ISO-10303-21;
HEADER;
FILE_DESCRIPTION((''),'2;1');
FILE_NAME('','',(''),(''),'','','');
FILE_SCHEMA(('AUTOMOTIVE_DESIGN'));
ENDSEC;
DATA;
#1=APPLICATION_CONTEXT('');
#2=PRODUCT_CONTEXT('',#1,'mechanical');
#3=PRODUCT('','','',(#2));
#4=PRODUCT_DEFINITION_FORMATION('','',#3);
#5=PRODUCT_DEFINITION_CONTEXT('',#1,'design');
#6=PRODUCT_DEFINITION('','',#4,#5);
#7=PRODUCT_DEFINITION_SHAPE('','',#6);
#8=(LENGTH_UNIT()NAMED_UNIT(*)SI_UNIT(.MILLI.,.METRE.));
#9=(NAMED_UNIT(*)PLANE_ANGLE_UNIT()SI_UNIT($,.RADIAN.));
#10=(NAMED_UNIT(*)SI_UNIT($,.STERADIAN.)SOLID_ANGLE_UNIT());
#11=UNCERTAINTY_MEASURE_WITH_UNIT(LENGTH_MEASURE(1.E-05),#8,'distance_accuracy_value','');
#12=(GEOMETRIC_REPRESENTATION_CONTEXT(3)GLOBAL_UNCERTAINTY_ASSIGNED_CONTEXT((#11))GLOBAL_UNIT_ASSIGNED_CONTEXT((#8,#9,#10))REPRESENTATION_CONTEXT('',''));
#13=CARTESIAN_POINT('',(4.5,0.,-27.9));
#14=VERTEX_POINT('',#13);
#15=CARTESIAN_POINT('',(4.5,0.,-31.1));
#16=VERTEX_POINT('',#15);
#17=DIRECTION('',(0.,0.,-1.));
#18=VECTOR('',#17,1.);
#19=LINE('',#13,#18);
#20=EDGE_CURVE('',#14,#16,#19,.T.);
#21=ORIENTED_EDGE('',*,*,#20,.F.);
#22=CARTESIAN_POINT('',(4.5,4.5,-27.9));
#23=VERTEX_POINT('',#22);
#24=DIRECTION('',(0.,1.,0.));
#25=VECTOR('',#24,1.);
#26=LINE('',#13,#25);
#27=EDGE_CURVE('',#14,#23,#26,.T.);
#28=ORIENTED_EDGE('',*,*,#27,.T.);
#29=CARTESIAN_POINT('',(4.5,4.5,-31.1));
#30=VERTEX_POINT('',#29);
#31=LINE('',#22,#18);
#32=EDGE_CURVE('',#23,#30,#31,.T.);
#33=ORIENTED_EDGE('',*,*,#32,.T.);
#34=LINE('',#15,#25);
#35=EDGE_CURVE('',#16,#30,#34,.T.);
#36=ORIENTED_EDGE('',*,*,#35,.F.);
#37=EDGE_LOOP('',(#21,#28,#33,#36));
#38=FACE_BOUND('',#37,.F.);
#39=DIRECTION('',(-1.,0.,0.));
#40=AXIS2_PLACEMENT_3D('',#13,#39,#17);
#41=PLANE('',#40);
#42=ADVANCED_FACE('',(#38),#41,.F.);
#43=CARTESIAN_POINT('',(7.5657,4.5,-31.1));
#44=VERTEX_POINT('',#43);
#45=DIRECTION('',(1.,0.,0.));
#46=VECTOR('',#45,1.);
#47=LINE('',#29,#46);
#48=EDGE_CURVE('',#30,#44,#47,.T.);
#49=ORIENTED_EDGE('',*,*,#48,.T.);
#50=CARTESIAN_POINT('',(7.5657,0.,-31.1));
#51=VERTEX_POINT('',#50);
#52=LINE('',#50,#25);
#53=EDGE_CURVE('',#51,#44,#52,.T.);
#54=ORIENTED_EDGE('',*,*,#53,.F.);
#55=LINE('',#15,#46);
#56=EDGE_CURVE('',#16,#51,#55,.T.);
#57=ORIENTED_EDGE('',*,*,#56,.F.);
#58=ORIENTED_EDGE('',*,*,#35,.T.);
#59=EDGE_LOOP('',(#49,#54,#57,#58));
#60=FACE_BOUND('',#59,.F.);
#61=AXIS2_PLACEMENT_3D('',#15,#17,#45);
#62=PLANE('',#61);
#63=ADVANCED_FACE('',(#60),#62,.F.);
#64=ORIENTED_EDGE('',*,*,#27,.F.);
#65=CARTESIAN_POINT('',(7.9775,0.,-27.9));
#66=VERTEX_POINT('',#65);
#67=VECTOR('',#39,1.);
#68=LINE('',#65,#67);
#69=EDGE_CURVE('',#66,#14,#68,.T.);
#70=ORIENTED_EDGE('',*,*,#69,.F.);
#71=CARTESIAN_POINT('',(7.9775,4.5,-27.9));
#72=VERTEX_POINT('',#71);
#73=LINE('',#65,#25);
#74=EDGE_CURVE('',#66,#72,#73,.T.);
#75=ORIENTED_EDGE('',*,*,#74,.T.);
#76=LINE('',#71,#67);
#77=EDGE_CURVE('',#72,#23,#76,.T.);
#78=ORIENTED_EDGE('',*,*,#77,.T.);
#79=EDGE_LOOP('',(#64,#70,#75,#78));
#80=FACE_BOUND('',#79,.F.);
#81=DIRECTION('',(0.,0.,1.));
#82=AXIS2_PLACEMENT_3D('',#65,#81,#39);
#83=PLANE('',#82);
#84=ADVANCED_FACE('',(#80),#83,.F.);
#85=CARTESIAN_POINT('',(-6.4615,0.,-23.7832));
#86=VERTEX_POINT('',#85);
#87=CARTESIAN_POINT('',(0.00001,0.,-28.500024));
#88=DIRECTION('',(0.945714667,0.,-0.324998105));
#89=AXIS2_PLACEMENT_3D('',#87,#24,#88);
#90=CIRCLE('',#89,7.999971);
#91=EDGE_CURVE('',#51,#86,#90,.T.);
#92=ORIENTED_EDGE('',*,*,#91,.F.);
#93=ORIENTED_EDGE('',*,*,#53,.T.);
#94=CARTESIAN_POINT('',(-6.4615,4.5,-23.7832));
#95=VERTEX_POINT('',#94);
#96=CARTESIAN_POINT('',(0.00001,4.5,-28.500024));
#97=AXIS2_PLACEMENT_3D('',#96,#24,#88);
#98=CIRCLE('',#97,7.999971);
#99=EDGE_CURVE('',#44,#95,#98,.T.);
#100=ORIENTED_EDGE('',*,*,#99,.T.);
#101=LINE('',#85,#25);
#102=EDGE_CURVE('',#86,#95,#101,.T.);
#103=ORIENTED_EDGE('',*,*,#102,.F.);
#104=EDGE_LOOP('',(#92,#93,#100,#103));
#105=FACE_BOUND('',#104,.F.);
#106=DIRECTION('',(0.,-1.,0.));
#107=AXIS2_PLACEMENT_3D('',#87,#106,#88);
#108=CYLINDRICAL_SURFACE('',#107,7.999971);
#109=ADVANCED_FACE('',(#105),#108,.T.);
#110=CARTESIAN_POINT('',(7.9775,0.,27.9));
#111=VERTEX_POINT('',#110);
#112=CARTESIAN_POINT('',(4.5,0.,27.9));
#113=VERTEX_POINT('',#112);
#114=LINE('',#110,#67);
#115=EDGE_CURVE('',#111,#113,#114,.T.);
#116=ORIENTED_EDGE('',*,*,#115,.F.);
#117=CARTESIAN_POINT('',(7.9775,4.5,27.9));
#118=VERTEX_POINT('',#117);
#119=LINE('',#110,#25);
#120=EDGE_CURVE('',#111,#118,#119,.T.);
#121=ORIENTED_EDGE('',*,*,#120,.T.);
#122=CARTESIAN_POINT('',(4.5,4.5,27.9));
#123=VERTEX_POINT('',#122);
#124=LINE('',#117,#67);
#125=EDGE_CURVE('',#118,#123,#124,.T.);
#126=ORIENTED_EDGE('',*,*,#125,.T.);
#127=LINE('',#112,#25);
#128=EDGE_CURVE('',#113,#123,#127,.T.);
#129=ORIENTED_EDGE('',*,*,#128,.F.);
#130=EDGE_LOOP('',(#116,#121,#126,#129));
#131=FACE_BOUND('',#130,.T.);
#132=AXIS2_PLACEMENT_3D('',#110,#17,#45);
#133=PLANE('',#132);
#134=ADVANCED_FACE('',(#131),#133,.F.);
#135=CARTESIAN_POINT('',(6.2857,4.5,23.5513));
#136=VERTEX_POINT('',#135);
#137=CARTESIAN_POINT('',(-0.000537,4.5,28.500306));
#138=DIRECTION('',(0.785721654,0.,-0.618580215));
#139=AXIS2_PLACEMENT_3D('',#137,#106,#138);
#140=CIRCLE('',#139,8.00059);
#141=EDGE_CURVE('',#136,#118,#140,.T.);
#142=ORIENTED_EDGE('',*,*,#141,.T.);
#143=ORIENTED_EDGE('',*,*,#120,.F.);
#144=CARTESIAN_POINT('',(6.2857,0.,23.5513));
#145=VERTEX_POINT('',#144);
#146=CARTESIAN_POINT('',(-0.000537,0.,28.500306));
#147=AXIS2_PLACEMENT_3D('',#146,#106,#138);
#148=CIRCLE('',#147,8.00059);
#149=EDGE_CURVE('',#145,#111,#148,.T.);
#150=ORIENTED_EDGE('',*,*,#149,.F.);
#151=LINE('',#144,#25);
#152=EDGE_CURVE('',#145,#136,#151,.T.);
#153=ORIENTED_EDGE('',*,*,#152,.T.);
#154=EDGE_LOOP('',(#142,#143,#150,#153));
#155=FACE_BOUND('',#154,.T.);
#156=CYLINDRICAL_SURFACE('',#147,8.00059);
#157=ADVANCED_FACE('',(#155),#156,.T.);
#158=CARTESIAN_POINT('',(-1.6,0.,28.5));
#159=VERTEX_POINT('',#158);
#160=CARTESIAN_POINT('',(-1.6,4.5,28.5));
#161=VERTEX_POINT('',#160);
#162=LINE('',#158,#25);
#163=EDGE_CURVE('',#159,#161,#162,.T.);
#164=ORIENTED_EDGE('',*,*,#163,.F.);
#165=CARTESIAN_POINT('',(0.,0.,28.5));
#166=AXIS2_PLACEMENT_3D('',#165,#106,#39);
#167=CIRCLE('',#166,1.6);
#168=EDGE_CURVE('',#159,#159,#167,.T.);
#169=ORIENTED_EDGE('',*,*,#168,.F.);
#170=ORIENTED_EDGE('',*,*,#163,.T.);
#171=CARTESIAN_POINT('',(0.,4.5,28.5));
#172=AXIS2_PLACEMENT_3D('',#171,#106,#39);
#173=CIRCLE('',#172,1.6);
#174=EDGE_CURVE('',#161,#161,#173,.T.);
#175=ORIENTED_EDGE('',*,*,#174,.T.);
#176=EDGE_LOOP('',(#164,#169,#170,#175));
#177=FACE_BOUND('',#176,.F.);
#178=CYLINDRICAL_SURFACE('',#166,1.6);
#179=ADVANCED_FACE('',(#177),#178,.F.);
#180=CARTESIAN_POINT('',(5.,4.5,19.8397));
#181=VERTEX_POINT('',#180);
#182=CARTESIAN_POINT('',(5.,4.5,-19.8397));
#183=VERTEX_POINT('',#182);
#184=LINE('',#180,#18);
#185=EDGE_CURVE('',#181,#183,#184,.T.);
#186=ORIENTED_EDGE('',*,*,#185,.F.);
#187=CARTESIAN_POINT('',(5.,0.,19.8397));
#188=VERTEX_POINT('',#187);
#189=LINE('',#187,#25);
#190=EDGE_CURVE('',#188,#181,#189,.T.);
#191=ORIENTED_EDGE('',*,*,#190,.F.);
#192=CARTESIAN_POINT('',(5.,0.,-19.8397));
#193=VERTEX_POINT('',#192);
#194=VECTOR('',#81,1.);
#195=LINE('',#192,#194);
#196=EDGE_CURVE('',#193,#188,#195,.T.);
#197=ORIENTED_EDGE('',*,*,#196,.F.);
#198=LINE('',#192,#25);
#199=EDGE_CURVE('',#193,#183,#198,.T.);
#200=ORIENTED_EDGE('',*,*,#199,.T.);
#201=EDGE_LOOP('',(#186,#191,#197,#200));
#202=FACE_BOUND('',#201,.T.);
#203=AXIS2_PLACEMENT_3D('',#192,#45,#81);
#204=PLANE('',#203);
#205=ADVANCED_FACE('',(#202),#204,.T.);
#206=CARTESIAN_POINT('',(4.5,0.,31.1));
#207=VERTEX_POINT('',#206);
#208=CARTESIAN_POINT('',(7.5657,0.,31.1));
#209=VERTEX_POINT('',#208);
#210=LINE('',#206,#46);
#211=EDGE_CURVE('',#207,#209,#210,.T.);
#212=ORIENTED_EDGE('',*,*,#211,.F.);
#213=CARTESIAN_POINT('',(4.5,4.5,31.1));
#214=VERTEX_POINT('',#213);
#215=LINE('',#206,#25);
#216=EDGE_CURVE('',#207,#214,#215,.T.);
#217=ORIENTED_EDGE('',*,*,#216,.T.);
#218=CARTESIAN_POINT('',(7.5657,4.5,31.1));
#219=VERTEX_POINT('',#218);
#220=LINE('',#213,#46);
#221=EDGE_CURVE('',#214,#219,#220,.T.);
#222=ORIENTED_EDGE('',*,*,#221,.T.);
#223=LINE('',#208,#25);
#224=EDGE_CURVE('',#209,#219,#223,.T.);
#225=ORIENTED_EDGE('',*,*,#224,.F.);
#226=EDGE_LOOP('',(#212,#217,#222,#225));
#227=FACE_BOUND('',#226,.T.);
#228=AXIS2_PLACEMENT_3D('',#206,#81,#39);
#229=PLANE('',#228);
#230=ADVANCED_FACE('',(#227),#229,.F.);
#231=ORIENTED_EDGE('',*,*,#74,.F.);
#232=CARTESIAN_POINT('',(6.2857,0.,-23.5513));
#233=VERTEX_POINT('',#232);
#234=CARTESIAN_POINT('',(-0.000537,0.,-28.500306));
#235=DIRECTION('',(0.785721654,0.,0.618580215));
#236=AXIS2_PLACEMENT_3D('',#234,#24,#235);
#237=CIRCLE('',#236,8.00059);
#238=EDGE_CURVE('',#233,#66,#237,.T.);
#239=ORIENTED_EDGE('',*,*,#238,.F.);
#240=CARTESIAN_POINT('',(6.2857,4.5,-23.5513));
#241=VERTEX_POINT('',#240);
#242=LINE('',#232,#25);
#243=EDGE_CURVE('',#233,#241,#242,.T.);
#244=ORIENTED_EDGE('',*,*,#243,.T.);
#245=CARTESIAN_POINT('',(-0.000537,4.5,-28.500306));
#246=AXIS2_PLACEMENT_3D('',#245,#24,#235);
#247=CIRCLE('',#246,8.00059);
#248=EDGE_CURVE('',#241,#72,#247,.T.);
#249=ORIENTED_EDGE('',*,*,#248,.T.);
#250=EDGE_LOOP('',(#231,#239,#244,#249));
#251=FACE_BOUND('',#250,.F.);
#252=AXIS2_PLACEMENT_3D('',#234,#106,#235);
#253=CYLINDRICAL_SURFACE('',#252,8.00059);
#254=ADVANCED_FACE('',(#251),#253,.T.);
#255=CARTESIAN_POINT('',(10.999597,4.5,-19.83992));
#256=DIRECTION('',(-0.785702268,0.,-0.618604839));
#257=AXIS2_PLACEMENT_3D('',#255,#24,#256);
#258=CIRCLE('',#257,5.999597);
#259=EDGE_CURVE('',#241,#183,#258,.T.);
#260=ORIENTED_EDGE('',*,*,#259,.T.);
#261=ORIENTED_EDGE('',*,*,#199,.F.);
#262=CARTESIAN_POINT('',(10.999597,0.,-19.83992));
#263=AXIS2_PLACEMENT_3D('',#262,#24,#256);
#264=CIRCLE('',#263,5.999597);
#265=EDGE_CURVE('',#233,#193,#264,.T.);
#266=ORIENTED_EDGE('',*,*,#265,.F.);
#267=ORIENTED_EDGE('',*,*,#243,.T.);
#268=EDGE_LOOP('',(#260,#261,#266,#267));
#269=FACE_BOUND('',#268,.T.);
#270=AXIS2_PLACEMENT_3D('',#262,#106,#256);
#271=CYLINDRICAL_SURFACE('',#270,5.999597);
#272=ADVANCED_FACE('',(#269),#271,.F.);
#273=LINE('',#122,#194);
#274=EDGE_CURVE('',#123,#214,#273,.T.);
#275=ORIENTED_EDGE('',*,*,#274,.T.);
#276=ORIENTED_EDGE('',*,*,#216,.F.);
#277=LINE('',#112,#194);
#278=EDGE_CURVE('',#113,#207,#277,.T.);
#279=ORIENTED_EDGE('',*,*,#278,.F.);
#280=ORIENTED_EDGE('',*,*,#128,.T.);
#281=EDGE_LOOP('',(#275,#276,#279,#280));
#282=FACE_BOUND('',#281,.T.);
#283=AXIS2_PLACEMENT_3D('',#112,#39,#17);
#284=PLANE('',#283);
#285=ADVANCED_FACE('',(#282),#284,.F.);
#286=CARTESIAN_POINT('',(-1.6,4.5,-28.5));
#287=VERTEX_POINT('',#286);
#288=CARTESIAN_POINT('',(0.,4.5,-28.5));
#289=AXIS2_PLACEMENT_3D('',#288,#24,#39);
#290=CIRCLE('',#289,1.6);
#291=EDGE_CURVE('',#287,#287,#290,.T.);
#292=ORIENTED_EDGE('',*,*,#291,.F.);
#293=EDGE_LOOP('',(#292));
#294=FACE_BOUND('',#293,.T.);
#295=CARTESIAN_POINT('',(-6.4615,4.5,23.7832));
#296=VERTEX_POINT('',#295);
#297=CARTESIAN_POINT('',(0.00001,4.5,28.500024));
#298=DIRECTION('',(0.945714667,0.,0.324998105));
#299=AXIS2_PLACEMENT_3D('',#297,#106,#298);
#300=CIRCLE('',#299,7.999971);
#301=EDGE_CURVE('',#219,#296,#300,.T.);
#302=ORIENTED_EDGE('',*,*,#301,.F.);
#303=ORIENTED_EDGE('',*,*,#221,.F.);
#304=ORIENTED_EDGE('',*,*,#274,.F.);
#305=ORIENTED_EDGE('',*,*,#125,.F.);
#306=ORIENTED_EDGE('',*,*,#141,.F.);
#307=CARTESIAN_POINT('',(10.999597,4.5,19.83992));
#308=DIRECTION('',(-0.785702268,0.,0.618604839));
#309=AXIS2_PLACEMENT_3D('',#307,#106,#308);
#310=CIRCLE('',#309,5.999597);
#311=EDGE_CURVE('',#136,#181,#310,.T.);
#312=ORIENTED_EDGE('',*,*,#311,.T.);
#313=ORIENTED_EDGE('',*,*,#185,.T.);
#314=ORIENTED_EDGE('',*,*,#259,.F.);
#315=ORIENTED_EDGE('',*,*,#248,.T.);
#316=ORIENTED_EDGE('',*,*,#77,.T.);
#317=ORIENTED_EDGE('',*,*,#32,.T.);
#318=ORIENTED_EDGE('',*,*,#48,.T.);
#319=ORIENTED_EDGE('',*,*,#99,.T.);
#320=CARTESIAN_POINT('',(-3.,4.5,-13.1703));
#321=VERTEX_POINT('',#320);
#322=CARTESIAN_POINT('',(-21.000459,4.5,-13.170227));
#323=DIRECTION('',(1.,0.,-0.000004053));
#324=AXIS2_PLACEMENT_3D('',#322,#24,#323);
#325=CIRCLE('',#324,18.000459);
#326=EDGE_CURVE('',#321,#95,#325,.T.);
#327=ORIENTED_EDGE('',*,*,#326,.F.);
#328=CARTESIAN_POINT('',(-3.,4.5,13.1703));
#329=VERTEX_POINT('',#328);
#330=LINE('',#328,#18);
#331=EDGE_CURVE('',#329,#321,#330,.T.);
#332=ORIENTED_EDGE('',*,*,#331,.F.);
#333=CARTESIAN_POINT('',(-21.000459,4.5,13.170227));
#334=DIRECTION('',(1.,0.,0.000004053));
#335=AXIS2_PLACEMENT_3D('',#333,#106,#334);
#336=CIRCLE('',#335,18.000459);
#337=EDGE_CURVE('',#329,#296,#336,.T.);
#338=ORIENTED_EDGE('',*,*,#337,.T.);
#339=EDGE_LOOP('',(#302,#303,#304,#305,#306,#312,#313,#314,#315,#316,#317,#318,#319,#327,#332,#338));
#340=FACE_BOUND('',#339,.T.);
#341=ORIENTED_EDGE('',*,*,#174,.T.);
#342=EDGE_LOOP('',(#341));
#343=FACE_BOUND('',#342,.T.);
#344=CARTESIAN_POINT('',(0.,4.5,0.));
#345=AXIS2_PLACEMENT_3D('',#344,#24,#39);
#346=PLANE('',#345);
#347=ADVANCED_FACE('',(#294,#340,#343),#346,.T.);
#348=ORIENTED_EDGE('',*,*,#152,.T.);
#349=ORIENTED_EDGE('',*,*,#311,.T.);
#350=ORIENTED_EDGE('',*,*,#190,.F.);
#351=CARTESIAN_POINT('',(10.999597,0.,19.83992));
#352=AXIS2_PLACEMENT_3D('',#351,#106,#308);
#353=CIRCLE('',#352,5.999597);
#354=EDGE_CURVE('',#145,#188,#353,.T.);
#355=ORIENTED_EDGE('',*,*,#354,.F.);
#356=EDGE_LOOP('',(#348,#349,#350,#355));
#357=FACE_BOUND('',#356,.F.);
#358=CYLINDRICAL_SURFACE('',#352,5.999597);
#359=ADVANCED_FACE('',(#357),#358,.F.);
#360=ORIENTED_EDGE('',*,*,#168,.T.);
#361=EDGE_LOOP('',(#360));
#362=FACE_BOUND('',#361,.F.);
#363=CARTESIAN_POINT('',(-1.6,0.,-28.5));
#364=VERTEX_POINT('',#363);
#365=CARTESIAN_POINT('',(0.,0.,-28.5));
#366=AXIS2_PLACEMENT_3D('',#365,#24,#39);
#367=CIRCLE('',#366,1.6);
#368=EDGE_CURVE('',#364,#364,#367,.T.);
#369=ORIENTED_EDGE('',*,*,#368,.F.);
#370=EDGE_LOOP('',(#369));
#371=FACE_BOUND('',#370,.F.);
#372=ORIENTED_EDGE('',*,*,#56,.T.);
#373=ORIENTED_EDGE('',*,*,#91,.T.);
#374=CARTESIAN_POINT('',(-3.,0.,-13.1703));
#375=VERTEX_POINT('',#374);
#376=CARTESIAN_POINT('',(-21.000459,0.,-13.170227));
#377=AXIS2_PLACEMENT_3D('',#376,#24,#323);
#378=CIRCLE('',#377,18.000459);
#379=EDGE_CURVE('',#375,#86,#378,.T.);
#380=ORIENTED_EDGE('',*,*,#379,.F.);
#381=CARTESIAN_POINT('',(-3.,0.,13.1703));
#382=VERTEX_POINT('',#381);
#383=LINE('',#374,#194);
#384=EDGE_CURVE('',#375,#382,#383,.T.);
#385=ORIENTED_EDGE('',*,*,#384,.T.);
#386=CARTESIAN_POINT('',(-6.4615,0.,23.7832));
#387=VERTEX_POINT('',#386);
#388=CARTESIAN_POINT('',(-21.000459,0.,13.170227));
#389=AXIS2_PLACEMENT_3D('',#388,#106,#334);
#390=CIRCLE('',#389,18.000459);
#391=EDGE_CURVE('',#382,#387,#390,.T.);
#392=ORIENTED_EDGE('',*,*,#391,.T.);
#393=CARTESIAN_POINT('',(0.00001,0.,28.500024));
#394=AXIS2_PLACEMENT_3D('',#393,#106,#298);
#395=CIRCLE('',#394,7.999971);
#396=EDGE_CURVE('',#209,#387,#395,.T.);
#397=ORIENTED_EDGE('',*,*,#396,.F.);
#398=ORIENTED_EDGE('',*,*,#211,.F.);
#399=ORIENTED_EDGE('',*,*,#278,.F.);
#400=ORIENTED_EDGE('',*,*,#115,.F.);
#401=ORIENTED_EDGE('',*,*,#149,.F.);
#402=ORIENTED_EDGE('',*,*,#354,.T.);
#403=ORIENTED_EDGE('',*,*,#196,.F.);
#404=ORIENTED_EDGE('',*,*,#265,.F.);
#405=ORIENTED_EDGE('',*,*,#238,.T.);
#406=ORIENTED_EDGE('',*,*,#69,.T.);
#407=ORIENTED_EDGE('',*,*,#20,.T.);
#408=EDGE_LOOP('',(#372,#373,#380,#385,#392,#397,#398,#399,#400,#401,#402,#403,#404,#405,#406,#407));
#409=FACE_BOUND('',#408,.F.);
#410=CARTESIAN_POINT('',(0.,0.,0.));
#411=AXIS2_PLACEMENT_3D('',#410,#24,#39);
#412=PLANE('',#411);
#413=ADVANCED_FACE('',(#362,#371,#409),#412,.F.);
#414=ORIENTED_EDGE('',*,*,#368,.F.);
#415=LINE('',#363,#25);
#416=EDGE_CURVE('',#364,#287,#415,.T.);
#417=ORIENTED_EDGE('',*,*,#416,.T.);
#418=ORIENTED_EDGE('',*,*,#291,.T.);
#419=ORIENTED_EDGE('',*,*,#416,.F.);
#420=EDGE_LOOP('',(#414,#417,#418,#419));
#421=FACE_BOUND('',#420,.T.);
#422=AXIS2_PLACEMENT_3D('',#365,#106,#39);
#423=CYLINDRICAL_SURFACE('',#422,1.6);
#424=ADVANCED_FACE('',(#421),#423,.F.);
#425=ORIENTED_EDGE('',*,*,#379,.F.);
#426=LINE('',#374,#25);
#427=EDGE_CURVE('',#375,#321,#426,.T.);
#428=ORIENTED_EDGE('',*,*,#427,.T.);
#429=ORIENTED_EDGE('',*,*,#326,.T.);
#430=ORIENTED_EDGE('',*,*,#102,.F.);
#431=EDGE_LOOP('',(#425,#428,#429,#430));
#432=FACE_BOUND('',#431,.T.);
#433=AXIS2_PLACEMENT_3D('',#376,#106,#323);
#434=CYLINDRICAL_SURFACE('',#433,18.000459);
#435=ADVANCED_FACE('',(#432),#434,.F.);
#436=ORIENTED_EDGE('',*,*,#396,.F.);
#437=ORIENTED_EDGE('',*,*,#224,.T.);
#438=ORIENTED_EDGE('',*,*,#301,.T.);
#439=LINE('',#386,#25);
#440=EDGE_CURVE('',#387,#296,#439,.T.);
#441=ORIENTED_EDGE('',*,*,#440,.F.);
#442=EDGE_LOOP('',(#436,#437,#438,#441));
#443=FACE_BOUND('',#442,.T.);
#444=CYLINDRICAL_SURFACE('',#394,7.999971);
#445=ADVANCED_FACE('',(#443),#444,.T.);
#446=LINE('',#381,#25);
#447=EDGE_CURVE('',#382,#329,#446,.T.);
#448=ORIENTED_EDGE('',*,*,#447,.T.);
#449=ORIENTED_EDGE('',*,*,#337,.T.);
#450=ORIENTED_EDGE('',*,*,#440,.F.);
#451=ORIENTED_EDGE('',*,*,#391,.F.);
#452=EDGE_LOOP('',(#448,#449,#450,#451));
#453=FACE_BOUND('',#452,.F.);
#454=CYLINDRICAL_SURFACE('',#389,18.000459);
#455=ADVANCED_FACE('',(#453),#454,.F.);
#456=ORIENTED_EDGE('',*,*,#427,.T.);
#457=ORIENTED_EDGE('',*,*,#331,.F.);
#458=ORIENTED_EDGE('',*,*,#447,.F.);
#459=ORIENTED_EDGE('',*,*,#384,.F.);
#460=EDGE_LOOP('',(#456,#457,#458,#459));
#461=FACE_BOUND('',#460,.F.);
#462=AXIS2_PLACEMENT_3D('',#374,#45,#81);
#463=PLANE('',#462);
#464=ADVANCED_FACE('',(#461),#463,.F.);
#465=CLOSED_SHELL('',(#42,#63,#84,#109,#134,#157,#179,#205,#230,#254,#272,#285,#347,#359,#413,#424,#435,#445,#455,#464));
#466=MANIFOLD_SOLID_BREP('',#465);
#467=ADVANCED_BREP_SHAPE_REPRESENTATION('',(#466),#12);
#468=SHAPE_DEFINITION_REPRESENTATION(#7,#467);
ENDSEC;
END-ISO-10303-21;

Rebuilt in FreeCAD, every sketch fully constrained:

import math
import FreeCAD as App
import Part
import Sketcher

V = App.Vector
Q = App.Units.Quantity

doc = App.newDocument("Part")
body = doc.addObject("PartDesign::Body", "Body")

# Sketch on XZ plane
sketch1 = doc.addObject("Sketcher::SketchObject", "Sketch")
body.addObject(sketch1)
sketch1.AttachmentSupport = (doc.XZ_Plane, [""])
sketch1.MapMode = "FlatFace"
sketch1.addGeometry([
    Part.ArcOfCircle(Part.Circle(V(-21, -13.2, 0), V(0, 0, 1), 18), math.radians(-36), math.radians(0)),  # 0
    Part.LineSegment(V(-3, -13.2, 0), V(-3, 0, 0)),  # 1
    Part.LineSegment(V(-3, 0, 0), V(5, 0, 0)),  # 2
    Part.LineSegment(V(5, 0, 0), V(5, -19.8, 0)),  # 3
    Part.ArcOfCircle(Part.Circle(V(11, -19.8, 0), V(0, 0, 1), 6), math.radians(180), math.radians(218)),  # 4
    Part.ArcOfCircle(Part.Circle(V(0, -28.5, 0), V(0, 0, 1), 8), math.radians(4), math.radians(38)),  # 5
    Part.LineSegment(V(8, -27.9, 0), V(4.5, -27.9, 0)),  # 6
    Part.LineSegment(V(4.5, -27.9, 0), V(4.5, -31.1, 0)),  # 7
    Part.LineSegment(V(4.5, -31.1, 0), V(7.6, -31.1, 0)),  # 8
    Part.ArcOfCircle(Part.Circle(V(0, -28.5, 0), V(0, 0, 1), 8), math.radians(144), math.radians(341)),  # 9
    Part.Circle(V(0, -28.5, 0), V(0, 0, 1), 1.6),  # 10
], False)
sketch1.addConstraint([
    Sketcher.Constraint("Tangent", 0, 2, 1, 1),
    Sketcher.Constraint("Coincident", 1, 2, 2, 1),
    Sketcher.Constraint("Coincident", 2, 2, 3, 1),
    Sketcher.Constraint("Tangent", 3, 2, 4, 1),
    Sketcher.Constraint("Tangent", 4, 2, 5, 2),
    Sketcher.Constraint("Coincident", 5, 1, 6, 1),
    Sketcher.Constraint("Coincident", 6, 2, 7, 1),
    Sketcher.Constraint("Coincident", 7, 2, 8, 1),
    Sketcher.Constraint("Coincident", 8, 2, 9, 2),
    Sketcher.Constraint("Tangent", 9, 1, 0, 1),
    Sketcher.Constraint("Vertical", 1),
    Sketcher.Constraint("Horizontal", 2),
    Sketcher.Constraint("Vertical", 3),
    Sketcher.Constraint("Horizontal", 6),
    Sketcher.Constraint("Vertical", 7),
    Sketcher.Constraint("Horizontal", 8),
    Sketcher.Constraint("Coincident", 9, 3, 5, 3),
    Sketcher.Constraint("Coincident", 10, 3, 5, 3),
    Sketcher.Constraint("Equal", 5, 9),
    Sketcher.Constraint("PointOnObject", 5, 3, -2),
    Sketcher.Constraint("PointOnObject", 1, 2, -1),
    Sketcher.Constraint("Radius", 0, Q("18 mm")),
    Sketcher.Constraint("Radius", 4, Q("6 mm")),
    Sketcher.Constraint("Radius", 5, Q("8 mm")),
    Sketcher.Constraint("Diameter", 10, Q("3.2 mm")),
    Sketcher.Constraint("DistanceX", 2, 1, 2, 2, Q("8 mm")),
    Sketcher.Constraint("DistanceY", 7, 2, 7, 1, Q("3.2 mm")),
    Sketcher.Constraint("DistanceX", 0, 2, -1, 1, Q("3 mm")),
    Sketcher.Constraint("DistanceX", -1, 1, 6, 2, Q("4.5 mm")),
    Sketcher.Constraint("DistanceY", 5, 3, 5, 1, Q("0.6 mm")),
    Sketcher.Constraint("DistanceY", 5, 3, -1, 1, Q("28.5 mm")),
])
pad1 = doc.addObject("PartDesign::Pad", "Pad")
body.addObject(pad1)
pad1.Profile = sketch1
pad1.Length = 4.5
pad1.Reversed = True
doc.recompute()

mirrored = doc.addObject("PartDesign::Mirrored", "Mirrored")
body.addObject(mirrored)
mirrored.Originals = [pad1]
mirrored.MirrorPlane = (doc.XY_Plane, [""])
body.Tip = mirrored

doc.recompute()
